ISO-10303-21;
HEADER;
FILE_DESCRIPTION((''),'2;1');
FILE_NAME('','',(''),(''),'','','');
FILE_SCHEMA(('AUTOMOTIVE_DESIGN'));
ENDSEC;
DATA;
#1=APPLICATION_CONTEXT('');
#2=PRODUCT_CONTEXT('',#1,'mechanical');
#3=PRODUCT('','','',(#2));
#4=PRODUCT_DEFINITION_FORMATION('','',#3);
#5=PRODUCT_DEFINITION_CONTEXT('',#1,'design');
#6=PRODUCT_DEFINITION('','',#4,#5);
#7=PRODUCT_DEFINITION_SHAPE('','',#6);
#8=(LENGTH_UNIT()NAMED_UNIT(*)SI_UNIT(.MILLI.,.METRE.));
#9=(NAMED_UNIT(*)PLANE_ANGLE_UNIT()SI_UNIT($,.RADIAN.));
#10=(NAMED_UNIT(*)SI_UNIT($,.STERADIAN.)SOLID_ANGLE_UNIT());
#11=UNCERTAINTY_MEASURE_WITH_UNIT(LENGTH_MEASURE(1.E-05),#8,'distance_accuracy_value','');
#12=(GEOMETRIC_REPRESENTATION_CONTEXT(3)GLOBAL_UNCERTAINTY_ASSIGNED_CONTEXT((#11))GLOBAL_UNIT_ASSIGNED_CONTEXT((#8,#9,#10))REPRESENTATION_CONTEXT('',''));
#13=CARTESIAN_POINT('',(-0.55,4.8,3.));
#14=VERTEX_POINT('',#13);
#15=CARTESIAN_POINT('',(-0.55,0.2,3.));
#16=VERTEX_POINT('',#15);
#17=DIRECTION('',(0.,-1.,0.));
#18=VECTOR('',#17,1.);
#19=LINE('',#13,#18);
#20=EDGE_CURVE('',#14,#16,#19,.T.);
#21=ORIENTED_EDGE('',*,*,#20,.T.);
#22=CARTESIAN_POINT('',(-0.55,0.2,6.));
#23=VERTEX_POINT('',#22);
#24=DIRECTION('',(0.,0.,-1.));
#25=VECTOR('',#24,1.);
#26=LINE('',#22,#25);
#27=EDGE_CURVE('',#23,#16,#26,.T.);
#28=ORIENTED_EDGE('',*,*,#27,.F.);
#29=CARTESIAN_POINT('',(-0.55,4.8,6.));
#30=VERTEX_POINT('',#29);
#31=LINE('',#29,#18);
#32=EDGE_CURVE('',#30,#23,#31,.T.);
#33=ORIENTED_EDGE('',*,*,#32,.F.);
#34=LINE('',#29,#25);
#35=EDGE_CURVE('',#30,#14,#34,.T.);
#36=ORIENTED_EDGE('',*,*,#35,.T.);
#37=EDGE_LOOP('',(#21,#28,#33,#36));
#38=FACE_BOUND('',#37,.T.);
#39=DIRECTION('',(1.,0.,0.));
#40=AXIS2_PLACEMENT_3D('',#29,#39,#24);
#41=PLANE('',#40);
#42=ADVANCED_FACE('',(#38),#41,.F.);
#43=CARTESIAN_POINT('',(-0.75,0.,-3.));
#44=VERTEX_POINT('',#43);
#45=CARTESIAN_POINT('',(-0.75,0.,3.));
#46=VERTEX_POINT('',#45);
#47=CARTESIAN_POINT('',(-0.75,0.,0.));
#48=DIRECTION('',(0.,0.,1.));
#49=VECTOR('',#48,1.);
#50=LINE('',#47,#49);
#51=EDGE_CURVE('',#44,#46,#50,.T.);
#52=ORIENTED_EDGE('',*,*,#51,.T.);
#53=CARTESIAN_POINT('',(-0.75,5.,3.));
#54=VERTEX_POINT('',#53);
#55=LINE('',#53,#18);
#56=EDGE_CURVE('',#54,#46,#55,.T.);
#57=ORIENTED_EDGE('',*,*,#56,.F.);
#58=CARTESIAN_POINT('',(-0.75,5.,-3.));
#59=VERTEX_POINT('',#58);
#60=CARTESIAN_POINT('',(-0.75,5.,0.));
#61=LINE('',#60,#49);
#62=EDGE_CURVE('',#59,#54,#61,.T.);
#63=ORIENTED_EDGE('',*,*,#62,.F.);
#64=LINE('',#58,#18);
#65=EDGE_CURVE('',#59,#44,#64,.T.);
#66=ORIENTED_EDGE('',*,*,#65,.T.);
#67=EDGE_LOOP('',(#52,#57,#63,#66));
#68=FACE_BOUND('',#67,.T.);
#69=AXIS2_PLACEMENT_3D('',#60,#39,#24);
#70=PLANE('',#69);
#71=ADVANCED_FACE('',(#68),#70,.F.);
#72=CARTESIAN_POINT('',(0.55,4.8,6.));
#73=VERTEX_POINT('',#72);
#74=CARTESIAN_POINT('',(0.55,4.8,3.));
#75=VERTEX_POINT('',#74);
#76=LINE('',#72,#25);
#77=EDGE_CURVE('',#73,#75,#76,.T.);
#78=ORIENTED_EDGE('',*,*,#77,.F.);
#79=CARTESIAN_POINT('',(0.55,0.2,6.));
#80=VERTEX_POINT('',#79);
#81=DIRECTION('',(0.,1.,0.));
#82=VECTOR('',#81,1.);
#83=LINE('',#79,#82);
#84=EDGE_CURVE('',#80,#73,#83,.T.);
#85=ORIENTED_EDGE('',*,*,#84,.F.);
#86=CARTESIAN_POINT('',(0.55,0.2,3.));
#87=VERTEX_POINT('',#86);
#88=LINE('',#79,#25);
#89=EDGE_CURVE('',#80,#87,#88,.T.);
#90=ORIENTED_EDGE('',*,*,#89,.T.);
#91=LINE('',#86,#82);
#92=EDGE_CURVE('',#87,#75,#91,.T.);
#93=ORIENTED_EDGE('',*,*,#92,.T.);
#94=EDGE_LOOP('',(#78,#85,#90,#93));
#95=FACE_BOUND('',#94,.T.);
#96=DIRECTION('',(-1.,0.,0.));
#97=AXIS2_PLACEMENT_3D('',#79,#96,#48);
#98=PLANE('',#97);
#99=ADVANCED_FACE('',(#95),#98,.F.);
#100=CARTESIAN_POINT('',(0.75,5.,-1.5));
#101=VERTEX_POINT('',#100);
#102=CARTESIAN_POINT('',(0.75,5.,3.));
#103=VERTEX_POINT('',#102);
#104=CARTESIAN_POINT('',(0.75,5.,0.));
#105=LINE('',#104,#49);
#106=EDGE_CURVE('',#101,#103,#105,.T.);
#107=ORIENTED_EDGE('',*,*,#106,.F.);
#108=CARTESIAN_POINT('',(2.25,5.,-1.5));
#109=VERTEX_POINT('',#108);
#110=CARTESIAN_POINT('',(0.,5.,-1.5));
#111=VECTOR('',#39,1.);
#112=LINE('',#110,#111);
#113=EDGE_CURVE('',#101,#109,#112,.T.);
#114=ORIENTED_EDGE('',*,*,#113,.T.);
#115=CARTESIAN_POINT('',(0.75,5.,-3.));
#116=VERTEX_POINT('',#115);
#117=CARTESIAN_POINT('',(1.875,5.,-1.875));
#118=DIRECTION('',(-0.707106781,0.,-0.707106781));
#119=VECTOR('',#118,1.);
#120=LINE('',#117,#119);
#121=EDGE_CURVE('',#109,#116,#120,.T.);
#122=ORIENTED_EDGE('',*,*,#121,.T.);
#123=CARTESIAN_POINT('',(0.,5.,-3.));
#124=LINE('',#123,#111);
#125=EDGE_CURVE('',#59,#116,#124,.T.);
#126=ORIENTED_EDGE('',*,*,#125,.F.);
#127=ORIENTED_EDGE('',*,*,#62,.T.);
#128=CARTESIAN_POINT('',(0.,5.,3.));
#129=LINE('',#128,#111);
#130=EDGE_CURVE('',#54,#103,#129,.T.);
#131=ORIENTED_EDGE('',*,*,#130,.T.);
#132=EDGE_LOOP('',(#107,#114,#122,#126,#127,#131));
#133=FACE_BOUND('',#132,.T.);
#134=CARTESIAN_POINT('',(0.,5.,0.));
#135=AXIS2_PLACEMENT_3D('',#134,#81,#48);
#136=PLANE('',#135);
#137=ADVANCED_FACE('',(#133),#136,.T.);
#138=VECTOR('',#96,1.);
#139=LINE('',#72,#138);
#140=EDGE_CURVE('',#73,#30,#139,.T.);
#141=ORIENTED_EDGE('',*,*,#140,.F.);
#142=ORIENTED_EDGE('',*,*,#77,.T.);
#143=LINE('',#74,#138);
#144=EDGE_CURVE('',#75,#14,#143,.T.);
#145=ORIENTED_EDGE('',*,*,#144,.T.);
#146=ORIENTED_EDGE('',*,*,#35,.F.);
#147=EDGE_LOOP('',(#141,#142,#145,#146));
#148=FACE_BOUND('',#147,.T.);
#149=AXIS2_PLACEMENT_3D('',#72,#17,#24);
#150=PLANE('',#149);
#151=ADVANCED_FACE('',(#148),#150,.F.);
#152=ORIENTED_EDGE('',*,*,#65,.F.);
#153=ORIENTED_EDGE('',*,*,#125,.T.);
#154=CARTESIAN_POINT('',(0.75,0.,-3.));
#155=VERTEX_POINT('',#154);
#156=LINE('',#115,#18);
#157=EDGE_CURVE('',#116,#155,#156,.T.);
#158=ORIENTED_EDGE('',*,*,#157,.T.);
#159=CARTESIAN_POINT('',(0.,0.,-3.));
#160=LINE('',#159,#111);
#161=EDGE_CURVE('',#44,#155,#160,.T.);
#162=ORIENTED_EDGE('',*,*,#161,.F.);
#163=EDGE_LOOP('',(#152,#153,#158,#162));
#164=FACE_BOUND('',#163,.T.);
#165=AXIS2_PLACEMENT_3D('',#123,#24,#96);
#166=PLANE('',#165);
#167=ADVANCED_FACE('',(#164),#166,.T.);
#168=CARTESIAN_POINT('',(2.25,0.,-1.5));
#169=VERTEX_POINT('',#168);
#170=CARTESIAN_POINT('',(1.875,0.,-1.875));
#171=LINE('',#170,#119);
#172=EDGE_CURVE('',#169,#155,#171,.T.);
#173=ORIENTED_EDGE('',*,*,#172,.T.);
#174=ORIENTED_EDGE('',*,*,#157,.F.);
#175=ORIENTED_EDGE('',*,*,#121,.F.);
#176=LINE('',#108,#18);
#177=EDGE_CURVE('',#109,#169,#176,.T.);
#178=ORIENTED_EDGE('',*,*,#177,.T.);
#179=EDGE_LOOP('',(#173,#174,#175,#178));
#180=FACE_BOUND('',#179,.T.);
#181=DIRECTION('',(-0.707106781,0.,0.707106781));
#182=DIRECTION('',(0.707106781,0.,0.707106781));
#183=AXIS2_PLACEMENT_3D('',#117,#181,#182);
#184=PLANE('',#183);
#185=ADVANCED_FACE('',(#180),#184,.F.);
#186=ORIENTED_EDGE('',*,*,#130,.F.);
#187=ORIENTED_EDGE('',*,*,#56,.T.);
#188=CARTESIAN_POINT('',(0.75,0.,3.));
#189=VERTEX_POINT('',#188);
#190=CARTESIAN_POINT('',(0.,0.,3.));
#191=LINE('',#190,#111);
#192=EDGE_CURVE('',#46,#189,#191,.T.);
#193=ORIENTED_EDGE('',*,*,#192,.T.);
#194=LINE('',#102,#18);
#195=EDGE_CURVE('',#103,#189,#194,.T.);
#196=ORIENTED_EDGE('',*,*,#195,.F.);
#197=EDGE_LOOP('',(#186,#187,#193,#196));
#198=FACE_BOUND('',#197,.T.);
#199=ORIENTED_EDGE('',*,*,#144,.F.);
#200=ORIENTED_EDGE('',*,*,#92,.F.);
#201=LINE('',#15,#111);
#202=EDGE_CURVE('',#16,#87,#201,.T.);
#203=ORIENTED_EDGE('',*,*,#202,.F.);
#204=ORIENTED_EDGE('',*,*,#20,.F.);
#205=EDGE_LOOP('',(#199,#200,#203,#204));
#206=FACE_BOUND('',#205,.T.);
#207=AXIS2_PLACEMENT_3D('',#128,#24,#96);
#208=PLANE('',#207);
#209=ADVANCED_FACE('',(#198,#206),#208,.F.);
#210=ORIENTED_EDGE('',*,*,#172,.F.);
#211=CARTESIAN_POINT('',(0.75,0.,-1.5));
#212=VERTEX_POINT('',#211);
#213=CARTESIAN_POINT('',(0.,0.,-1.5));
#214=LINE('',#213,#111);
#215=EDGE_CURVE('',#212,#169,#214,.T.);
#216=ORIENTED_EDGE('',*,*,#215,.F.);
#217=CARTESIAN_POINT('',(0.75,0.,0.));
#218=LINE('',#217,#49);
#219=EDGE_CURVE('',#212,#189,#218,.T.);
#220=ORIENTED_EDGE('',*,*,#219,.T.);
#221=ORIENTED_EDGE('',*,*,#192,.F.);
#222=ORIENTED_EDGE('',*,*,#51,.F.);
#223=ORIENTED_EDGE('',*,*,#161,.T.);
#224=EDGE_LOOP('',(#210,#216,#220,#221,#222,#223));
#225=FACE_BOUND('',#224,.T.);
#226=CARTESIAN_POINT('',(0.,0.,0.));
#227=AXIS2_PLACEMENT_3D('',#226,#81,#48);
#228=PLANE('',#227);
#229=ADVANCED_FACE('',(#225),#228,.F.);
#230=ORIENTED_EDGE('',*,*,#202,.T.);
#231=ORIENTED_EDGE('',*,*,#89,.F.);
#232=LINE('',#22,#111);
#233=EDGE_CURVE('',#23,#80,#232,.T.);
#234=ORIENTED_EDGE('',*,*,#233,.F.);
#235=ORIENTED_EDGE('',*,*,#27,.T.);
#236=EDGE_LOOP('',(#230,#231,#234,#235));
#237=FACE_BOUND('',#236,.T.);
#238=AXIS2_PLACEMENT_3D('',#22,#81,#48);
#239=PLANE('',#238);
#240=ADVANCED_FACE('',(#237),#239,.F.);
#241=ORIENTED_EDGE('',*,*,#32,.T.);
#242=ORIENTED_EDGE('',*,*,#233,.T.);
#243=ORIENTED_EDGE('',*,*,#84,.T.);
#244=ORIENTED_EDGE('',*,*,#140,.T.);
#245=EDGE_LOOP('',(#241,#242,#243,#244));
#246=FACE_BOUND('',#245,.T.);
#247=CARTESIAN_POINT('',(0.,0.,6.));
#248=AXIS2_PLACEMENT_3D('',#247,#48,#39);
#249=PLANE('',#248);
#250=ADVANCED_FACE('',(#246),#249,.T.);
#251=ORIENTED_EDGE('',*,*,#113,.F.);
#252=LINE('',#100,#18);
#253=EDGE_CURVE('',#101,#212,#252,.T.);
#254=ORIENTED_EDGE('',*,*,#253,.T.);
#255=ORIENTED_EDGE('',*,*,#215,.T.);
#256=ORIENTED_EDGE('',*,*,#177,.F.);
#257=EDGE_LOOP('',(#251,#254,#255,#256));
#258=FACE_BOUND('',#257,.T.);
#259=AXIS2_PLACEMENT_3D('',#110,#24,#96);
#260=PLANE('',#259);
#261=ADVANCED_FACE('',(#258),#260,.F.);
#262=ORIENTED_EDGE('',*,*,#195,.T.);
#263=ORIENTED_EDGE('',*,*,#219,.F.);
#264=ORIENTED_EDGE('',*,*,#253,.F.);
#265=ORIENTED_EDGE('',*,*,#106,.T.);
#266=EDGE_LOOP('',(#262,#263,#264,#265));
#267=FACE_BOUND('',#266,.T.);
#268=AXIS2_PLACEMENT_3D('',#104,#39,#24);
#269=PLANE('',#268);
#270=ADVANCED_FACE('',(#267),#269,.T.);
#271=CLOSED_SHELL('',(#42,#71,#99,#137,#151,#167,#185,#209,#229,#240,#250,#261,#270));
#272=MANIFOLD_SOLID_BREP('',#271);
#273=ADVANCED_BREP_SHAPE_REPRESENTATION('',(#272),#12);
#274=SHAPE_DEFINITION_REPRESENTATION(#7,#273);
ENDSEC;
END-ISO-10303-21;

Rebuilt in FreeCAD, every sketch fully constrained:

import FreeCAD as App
import Part
import Sketcher
from FreeCAD import Vector
Q = App.Units.Quantity


def add_polygon(sketch, points):
    """Adds a closed chain of lines whose ends are joined by coincident constraints."""
    first, n = sketch.GeometryCount, len(points)
    for a, b in zip(points, points[1:] + points[:1]):
        sketch.addGeometry(Part.LineSegment(App.Vector(*a, 0), App.Vector(*b, 0)), False)
    for i in range(n):
        sketch.addConstraint(Sketcher.Constraint("Coincident", first + i, 2, first + (i + 1) % n, 1))

doc = App.newDocument("Part")
params = doc.addObject("Spreadsheet::Sheet", "Params")
for row, (alias, value) in enumerate([
    ("sketch1_height", "6 mm"),
    ("sketch1_width", "1.5 mm"),
    ("pad1_length", "5 mm"),
    ("sketch2_width", "1.1 mm"),
    ("sketch2_height", "4.6 mm"),
    ("pad2_length", "3 mm"),
], start=1):
    params.set(f"A{row}", alias)
    params.set(f"B{row}", "=" + value)
    params.setAlias(f"B{row}", alias)

body = doc.addObject("PartDesign::Body", "Body")

sketch1 = doc.addObject("Sketcher::SketchObject", "Sketch")
body.addObject(sketch1)
sketch1.AttachmentSupport = (doc.XZ_Plane, [""])
sketch1.MapMode = "FlatFace"
add_polygon(sketch1, [(2.2, -1.5), (0.8, -3), (-0.8, -3), (-0.8, 3), (0.8, 3), (0.8, -1.5)])
sketch1.addConstraint([
    Sketcher.Constraint("Horizontal", 1),
    Sketcher.Constraint("Vertical", 2),
    Sketcher.Constraint("Horizontal", 3),
    Sketcher.Constraint("Vertical", 4),
    Sketcher.Constraint("Horizontal", 5),
    Sketcher.Constraint("Symmetric", 0, 2, 2, 2, -1, 1),
    Sketcher.Constraint("Vertical", 0, 2, 3, 2),
    Sketcher.Constraint("Equal", 3, 5),
    Sketcher.Constraint("DistanceY", 2, 1, 2, 2, Q("6 mm")),
    Sketcher.Constraint("Angle", 0, Q("-135 deg")),
    Sketcher.Constraint("DistanceX", 1, 2, 1, 1, Q("1.5 mm")),
])
sketch1.setExpression("Constraints[14]", "Params.sketch1_height")
sketch1.setExpression("Constraints[16]", "Params.sketch1_width")
pad1 = doc.addObject("PartDesign::Pad", "Pad")
body.addObject(pad1)
pad1.Profile = sketch1
pad1.setExpression("Length", "Params.pad1_length")
pad1.Reversed = True

sketch2 = doc.addObject("Sketcher::SketchObject", "Sketch001")
body.addObject(sketch2)
sketch2.AttachmentSupport = (doc.XY_Plane, [""])
sketch2.MapMode = "FlatFace"
sketch2.AttachmentOffset = App.Placement(Vector(0, 0, 3), App.Rotation())
add_polygon(sketch2, [(-0.6, 4.8), (-0.6, 0.2), (0.6, 0.2), (0.6, 4.8)])
sketch2.addConstraint([
    Sketcher.Constraint("Vertical", 0),
    Sketcher.Constraint("Horizontal", 1),
    Sketcher.Constraint("Vertical", 2),
    Sketcher.Constraint("Horizontal", 3),
    Sketcher.Constraint("DistanceX", 1, 1, 1, 2, Q("1.1 mm")),
    Sketcher.Constraint("DistanceY", 0, 2, 0, 1, Q("4.6 mm")),
    Sketcher.Constraint("DistanceY", -1, 1, 0, 2, Q("0.2 mm")),
    Sketcher.Constraint("DistanceX", 0, 2, -1, 1, Q("0.55 mm")),
])
sketch2.setExpression("Constraints[8]", "Params.sketch2_width")
sketch2.setExpression("Constraints[9]", "Params.sketch2_height")
pad2 = doc.addObject("PartDesign::Pad", "Pad001")
body.addObject(pad2)
pad2.Profile = sketch2
pad2.setExpression("Length", "Params.pad2_length")

doc.recompute()
